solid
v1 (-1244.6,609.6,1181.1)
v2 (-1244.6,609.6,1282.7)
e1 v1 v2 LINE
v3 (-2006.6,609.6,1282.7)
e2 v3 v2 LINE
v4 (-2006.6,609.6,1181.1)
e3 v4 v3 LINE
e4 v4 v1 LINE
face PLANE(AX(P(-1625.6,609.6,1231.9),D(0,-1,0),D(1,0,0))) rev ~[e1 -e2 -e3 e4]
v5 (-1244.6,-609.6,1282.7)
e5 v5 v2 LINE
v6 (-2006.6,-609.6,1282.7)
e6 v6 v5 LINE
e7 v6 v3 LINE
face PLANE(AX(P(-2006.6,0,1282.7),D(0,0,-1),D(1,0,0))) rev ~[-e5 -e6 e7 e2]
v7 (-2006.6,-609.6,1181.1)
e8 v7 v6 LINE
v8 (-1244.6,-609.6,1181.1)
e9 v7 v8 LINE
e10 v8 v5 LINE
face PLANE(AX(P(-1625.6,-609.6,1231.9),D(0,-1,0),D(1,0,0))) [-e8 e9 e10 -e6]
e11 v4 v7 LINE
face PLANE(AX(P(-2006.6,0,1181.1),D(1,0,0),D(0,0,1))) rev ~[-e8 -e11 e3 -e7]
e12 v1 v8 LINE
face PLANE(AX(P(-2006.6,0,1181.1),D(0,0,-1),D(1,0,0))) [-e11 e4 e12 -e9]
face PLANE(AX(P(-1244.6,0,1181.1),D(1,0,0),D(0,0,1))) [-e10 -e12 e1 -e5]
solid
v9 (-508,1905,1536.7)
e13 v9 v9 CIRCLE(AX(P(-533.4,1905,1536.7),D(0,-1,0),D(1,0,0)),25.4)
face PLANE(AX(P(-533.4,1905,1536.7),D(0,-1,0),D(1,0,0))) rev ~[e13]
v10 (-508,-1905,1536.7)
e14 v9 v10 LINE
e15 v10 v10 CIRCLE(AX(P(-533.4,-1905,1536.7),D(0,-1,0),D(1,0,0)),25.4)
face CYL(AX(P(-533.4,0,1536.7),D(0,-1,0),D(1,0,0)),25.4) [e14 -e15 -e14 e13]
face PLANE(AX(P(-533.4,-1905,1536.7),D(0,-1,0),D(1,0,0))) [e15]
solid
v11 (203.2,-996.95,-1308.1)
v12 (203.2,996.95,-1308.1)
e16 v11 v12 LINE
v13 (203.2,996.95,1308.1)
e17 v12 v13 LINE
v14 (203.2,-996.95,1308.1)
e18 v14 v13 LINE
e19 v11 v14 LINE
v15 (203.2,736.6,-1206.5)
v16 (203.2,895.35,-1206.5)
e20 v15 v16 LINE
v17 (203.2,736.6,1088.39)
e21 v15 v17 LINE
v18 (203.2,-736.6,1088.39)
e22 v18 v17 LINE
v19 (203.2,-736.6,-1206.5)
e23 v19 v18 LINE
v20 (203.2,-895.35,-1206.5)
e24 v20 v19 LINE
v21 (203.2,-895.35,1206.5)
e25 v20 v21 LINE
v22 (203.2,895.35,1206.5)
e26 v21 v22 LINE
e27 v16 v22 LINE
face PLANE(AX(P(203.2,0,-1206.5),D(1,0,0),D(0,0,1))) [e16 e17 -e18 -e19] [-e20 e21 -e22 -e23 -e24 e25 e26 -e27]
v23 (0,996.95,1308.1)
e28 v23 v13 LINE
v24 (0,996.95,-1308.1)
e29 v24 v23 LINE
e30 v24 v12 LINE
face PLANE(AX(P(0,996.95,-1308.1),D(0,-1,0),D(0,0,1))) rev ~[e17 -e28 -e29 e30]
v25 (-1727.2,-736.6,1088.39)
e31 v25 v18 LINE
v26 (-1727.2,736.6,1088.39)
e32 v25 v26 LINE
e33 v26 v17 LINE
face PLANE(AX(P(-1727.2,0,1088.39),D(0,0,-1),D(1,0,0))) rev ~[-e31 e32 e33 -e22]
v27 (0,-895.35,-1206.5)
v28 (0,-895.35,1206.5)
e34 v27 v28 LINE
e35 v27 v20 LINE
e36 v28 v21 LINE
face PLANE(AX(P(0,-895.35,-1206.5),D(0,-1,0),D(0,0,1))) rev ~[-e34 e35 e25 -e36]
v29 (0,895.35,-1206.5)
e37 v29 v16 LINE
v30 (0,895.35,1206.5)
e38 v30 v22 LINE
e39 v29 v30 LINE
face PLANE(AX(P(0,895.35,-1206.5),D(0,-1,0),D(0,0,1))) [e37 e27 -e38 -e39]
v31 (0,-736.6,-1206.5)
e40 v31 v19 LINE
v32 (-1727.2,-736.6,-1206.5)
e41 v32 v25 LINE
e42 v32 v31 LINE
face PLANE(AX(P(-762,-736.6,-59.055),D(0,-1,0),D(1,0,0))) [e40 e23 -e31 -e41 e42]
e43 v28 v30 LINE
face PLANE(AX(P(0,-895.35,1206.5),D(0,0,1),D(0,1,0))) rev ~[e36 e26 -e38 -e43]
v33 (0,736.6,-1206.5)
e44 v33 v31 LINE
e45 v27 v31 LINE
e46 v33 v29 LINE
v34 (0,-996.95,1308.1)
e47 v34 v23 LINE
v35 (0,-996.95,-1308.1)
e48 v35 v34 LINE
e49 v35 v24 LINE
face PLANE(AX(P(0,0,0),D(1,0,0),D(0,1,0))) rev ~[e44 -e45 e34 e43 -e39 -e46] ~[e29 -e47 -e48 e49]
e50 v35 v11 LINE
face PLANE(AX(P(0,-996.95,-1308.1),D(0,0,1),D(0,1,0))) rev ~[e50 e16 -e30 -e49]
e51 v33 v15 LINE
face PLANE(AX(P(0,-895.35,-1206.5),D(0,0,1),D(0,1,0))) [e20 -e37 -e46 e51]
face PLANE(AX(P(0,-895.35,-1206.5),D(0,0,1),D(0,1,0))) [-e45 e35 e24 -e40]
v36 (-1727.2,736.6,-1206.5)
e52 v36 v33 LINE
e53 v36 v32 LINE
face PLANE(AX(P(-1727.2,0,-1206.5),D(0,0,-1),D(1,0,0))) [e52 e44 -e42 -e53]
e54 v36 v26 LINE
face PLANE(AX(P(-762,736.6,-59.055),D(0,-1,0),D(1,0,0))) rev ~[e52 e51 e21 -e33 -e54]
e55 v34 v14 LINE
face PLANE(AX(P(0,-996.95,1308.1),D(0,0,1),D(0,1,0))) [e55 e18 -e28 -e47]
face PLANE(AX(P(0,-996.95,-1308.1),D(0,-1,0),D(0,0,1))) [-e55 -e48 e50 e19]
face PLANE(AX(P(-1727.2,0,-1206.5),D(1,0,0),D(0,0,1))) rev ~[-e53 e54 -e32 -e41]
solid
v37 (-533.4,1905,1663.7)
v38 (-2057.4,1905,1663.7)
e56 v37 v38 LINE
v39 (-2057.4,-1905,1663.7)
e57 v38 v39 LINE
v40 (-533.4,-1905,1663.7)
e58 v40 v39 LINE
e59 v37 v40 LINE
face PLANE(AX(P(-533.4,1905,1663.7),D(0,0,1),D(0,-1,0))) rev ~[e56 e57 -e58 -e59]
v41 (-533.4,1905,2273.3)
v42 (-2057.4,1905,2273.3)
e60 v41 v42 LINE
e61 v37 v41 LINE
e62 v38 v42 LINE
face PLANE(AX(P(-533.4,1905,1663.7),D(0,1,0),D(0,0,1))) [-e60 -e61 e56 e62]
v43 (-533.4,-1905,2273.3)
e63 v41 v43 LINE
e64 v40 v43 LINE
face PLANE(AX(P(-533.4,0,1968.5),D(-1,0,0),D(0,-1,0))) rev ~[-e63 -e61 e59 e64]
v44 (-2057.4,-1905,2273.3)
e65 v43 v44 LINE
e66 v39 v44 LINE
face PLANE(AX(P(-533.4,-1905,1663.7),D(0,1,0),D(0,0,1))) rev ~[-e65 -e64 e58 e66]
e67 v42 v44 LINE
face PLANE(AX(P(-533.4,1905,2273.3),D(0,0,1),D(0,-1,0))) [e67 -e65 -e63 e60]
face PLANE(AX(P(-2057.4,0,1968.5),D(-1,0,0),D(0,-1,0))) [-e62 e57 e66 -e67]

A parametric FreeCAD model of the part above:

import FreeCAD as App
import Part
import Sketcher
from FreeCAD import Vector
Q = App.Units.Quantity


def add_polygon(sketch, points):
    """Adds a closed chain of lines whose ends are joined by coincident constraints."""
    first, n = sketch.GeometryCount, len(points)
    for a, b in zip(points, points[1:] + points[:1]):
        sketch.addGeometry(Part.LineSegment(App.Vector(*a, 0), App.Vector(*b, 0)), False)
    for i in range(n):
        sketch.addConstraint(Sketcher.Constraint("Coincident", first + i, 2, first + (i + 1) % n, 1))

doc = App.newDocument("Part")
body = doc.addObject("PartDesign::Body", "Body")

# Sketch on YZ plane
sketch1 = body.newObject("Sketcher::SketchObject", "Sketch")
sketch1.AttachmentSupport = (doc.getObject("YZ_Plane"), [""])
sketch1.MapMode = "FlatFace"
add_polygon(sketch1, [(-997, 1308), (-997, -1308), (997, -1308), (997, 1308)])  # lines 0-3
add_polygon(sketch1, [(895, -1206), (-895, -1206), (-895, 1206), (895, 1206)])  # lines 4-7
sketch1.addConstraint([
    Sketcher.Constraint("Vertical", 0),
    Sketcher.Constraint("Horizontal", 1),
    Sketcher.Constraint("Vertical", 2),
    Sketcher.Constraint("Horizontal", 3),
    Sketcher.Constraint("Horizontal", 4),
    Sketcher.Constraint("Vertical", 5),
    Sketcher.Constraint("Horizontal", 6),
    Sketcher.Constraint("Vertical", 7),
    Sketcher.Constraint("Symmetric", 0, 2, 2, 2, -1, 1),
    Sketcher.Constraint("Symmetric", 4, 2, 6, 2, -1, 1),
    Sketcher.Constraint("DistanceY", 0, 2, 0, 1, Q("103 in")),
    Sketcher.Constraint("DistanceY", 5, 1, 5, 2, Q("95 in")),
    Sketcher.Constraint("DistanceX", 1, 1, 1, 2, Q("78.5 in")),
    Sketcher.Constraint("DistanceX", 4, 2, 4, 1, Q("70.5 in")),
])
pad1 = body.newObject("PartDesign::Pad", "Pad")
pad1.Profile = sketch1
pad1.Length = Q("8 in")

# Sketch on XZ plane
sketch2 = body.newObject("Sketcher::SketchObject", "Sketch001")
sketch2.AttachmentSupport = (doc.getObject("XZ_Plane"), [""])
sketch2.MapMode = "FlatFace"
add_polygon(sketch2, [(-1727, 1088), (-1727, -1206), (203, -1206), (203, 1088)])  # lines 0-3
sketch2.addConstraint([
    Sketcher.Constraint("Vertical", 0),
    Sketcher.Constraint("Horizontal", 1),
    Sketcher.Constraint("Vertical", 2),
    Sketcher.Constraint("Horizontal", 3),
    Sketcher.Constraint("DistanceX", 1, 1, 1, 2, Q("76 in")),
    Sketcher.Constraint("DistanceX", 0, 2, -1, 1, Q("68 in")),
    Sketcher.Constraint("DistanceY", 0, 2, 0, 1, Q("90.35 in")),
    Sketcher.Constraint("DistanceY", 0, 2, -1, 1, Q("47.5 in")),
])
pad2 = body.newObject("PartDesign::Pad", "Pad001")
pad2.Profile = sketch2
pad2.Type = "TwoLengths"
pad2.Length = Q("29 in")
pad2.Length2 = Q("29 in")
body2 = doc.addObject("PartDesign::Body", "Body001")

# Sketch on YZ plane
sketch3 = body2.newObject("Sketcher::SketchObject", "Sketch002")
sketch3.AttachmentSupport = (doc.getObject("YZ_Plane001"), [""])
sketch3.MapMode = "FlatFace"
sketch3.AttachmentOffset = App.Placement(Vector(0, 0, -21 * 25.4), App.Rotation())
add_polygon(sketch3, [(1905, 2273), (1905, 1664), (-1905, 1664), (-1905, 2273)])  # lines 0-3
sketch3.addConstraint([
    Sketcher.Constraint("Vertical", 0),
    Sketcher.Constraint("Horizontal", 1),
    Sketcher.Constraint("Vertical", 2),
    Sketcher.Constraint("Horizontal", 3),
    Sketcher.Constraint("DistanceX", 1, 2, 1, 1, Q("150 in")),
    Sketcher.Constraint("DistanceY", 0, 2, 0, 1, Q("24 in")),
    Sketcher.Constraint("DistanceX", -1, 1, 0, 2, Q("75 in")),
    Sketcher.Constraint("DistanceY", -1, 1, 0, 2, Q("65.5 in")),
])
pad3 = body2.newObject("PartDesign::Pad", "Pad002")
pad3.Profile = sketch3
pad3.Length = Q("60 in")
pad3.Reversed = True
body3 = doc.addObject("PartDesign::Body", "Body002")

# Sketch on XZ plane
sketch4 = body3.newObject("Sketcher::SketchObject", "Sketch003")
sketch4.AttachmentSupport = (doc.getObject("XZ_Plane002"), [""])
sketch4.MapMode = "FlatFace"
sketch4.addGeometry(Part.Circle(Vector(-533, 1537, 0), Vector(0, 0, 1), 25), False)
sketch4.addConstraint([
    Sketcher.Constraint("Diameter", 0, Q("2 in")),
    Sketcher.Constraint("DistanceX", 0, 3, -1, 1, Q("21 in")),
    Sketcher.Constraint("DistanceY", -1, 1, 0, 3, Q("60.5 in")),
])
pad4 = body3.newObject("PartDesign::Pad", "Pad003")
pad4.Profile = sketch4
pad4.Type = "TwoLengths"
pad4.Length = Q("75 in")
pad4.Length2 = Q("75 in")
body4 = doc.addObject("PartDesign::Body", "Body003")

# Sketch on XZ plane
sketch5 = body4.newObject("Sketcher::SketchObject", "Sketch004")
sketch5.AttachmentSupport = (doc.getObject("XZ_Plane003"), [""])
sketch5.MapMode = "FlatFace"
add_polygon(sketch5, [(-2007, 1283), (-2007, 1181), (-1245, 1181), (-1245, 1283)])  # lines 0-3
sketch5.addConstraint([
    Sketcher.Constraint("Vertical", 0),
    Sketcher.Constraint("Horizontal", 1),
    Sketcher.Constraint("Vertical", 2),
    Sketcher.Constraint("Horizontal", 3),
    Sketcher.Constraint("DistanceX", 1, 1, 1, 2, Q("30 in")),
    Sketcher.Constraint("DistanceY", 0, 2, 0, 1, Q("4 in")),
    Sketcher.Constraint("DistanceX", 0, 2, -1, 1, Q("79 in")),
    Sketcher.Constraint("DistanceY", -1, 1, 0, 2, Q("46.5 in")),
])
pad5 = body4.newObject("PartDesign::Pad", "Pad004")
pad5.Profile = sketch5
pad5.Type = "TwoLengths"
pad5.Length = Q("24 in")
pad5.Length2 = Q("24 in")

doc.recompute()
